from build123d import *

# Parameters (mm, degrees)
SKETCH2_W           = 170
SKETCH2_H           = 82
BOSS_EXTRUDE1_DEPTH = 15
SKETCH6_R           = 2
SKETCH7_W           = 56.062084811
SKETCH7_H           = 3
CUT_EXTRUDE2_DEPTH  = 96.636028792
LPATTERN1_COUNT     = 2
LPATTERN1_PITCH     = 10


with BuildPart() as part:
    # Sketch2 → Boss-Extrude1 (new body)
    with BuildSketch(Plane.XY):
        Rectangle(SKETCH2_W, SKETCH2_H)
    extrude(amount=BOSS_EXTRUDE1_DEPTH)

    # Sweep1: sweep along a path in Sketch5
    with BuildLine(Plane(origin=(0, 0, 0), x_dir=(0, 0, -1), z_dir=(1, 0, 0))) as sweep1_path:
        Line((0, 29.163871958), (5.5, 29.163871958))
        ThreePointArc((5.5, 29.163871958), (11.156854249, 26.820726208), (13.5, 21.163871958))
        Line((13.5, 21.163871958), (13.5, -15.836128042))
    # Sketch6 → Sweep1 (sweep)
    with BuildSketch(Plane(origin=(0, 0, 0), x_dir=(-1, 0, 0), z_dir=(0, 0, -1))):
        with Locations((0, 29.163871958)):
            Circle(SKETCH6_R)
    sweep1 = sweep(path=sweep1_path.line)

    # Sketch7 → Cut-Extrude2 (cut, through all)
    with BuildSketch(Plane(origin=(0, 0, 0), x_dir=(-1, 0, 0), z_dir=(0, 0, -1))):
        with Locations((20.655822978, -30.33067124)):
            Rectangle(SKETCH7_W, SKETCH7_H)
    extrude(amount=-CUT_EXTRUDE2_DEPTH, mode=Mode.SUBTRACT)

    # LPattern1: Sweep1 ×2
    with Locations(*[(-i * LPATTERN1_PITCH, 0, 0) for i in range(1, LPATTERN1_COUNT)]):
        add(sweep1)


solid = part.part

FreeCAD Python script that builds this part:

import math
import FreeCAD as App
import Part
import Sketcher
Q = App.Units.Quantity


def add_polygon(sketch, points):
    """Adds a closed chain of lines whose ends are joined by coincident constraints."""
    first, n = sketch.GeometryCount, len(points)
    for a, b in zip(points, points[1:] + points[:1]):
        sketch.addGeometry(Part.LineSegment(App.Vector(*a, 0), App.Vector(*b, 0)), False)
    for i in range(n):
        sketch.addConstraint(Sketcher.Constraint("Coincident", first + i, 2, first + (i + 1) % n, 1))

doc = App.newDocument("Part")
params = doc.addObject("Spreadsheet::Sheet", "Params")
for row, (alias, value) in enumerate([
    ("sketch1_width", "170 mm"),
    ("sketch1_height", "82 mm"),
    ("pad1_length", "15 mm"),
    ("sketch2_diameter", "4 mm"),
    ("sketch3_radius", "8 mm"),
    ("sketch3_width", "37 mm"),
    ("sketch3_height", "5.5 mm"),
    ("sketch4_height", "3 mm"),
    ("linearpattern_pitch", "10 mm"),
], start=1):
    params.set(f"A{row}", alias)
    params.set(f"B{row}", "=" + value)
    params.setAlias(f"B{row}", alias)

body = doc.addObject("PartDesign::Body", "Body")

sketch1 = body.newObject("Sketcher::SketchObject", "Sketch")
sketch1.AttachmentSupport = (doc.getObject("XY_Plane"), [""])
sketch1.MapMode = "FlatFace"
add_polygon(sketch1, [(-85, 41), (-85, -41), (85, -41), (85, 41)])
sketch1.addConstraint([
    Sketcher.Constraint("Vertical", 0),
    Sketcher.Constraint("Horizontal", 1),
    Sketcher.Constraint("Vertical", 2),
    Sketcher.Constraint("Horizontal", 3),
    Sketcher.Constraint("Symmetric", 0, 2, 2, 2, -1, 1),
    Sketcher.Constraint("DistanceX", 1, 1, 1, 2, Q("170 mm")),
    Sketcher.Constraint("DistanceY", 0, 2, 0, 1, Q("82 mm")),
])
sketch1.setExpression("Constraints[9]", "Params.sketch1_width")
sketch1.setExpression("Constraints[10]", "Params.sketch1_height")
pad1 = body.newObject("PartDesign::Pad", "Pad")
pad1.Profile = sketch1
pad1.setExpression("Length", "Params.pad1_length")

sketch2 = body.newObject("Sketcher::SketchObject", "Sketch001")
sketch2.AttachmentSupport = (doc.getObject("XY_Plane"), [""])
sketch2.MapMode = "FlatFace"
sketch2.addGeometry(Part.Circle(App.Vector(0, 29.2, 0), App.Vector(0, 0, 1), 2), False)
sketch2.addConstraint([
    Sketcher.Constraint("PointOnObject", 0, 3, -2),
    Sketcher.Constraint("Diameter", 0, Q("4 mm")),
    Sketcher.Constraint("DistanceY", -1, 1, 0, 3, Q("29.163872 mm")),
])
sketch2.setExpression("Constraints[1]", "Params.sketch2_diameter")

sketch3 = body.newObject("Sketcher::SketchObject", "Sketch002")
sketch3.AttachmentSupport = (doc.getObject("YZ_Plane"), [""])
sketch3.MapMode = "FlatFace"
sketch3.addGeometry([
    Part.LineSegment(App.Vector(29, 0, 0), App.Vector(29, -6, 0)),
    Part.ArcOfCircle(Part.Circle(App.Vector(21, -6, 0), App.Vector(0, 0, 1), 8), math.radians(-90), math.radians(0)),
    Part.LineSegment(App.Vector(21, -14, 0), App.Vector(-16, -14, 0)),
], False)
sketch3.addConstraint([
    Sketcher.Constraint("Tangent", 0, 2, 1, 2),
    Sketcher.Constraint("Tangent", 1, 1, 2, 1),
    Sketcher.Constraint("Vertical", 0),
    Sketcher.Constraint("Horizontal", 2),
    Sketcher.Constraint("PointOnObject", 0, 1, -1),
    Sketcher.Constraint("Radius", 1, Q("8 mm")),
    Sketcher.Constraint("DistanceX", 2, 2, 2, 1, Q("37 mm")),
    Sketcher.Constraint("DistanceY", 0, 2, 0, 1, Q("5.5 mm")),
    Sketcher.Constraint("DistanceX", -1, 1, 1, 3, Q("21.163872 mm")),
])
sketch3.setExpression("Constraints[5]", "Params.sketch3_radius")
sketch3.setExpression("Constraints[6]", "Params.sketch3_width")
sketch3.setExpression("Constraints[7]", "Params.sketch3_height")
doc.recompute()

additivepipe = body.newObject("PartDesign::AdditivePipe", "AdditivePipe")
additivepipe.Profile = sketch2
additivepipe.Spine = (sketch3, ["Edge1", "Edge2", "Edge3"])

sketch4 = body.newObject("Sketcher::SketchObject", "Sketch003")
sketch4.AttachmentSupport = (doc.getObject("XY_Plane"), [""])
sketch4.MapMode = "FlatFace"
add_polygon(sketch4, [(7.4, -28.8), (7.4, -31.8), (-48.7, -31.8), (-48.7, -28.8)])
sketch4.addConstraint([
    Sketcher.Constraint("Vertical", 0),
    Sketcher.Constraint("Horizontal", 1),
    Sketcher.Constraint("Vertical", 2),
    Sketcher.Constraint("Horizontal", 3),
    Sketcher.Constraint("DistanceY", 0, 2, 0, 1, Q("3 mm")),
    Sketcher.Constraint("DistanceX", 1, 2, 1, 1, Q("56.062085 mm")),
    Sketcher.Constraint("DistanceX", -1, 1, 0, 2, Q("7.375219 mm")),
    Sketcher.Constraint("DistanceY", 0, 2, -1, 1, Q("31.830671 mm")),
])
sketch4.setExpression("Constraints[8]", "Params.sketch4_height")
pocket1 = body.newObject("PartDesign::Pocket", "Pocket")
pocket1.Profile = sketch4
pocket1.Type = "ThroughAll"
pocket1.Reversed = True
doc.recompute()

linearpattern = body.newObject("PartDesign::LinearPattern", "LinearPattern")
linearpattern.Originals = [additivepipe]
linearpattern.Direction = (doc.getObject("X_Axis"), [""])
linearpattern.Mode = "offset"
linearpattern.setExpression("Offset", "Params.linearpattern_pitch")
linearpattern.Occurrences = 2
linearpattern.Reversed = True
body.Tip = linearpattern

doc.recompute()
